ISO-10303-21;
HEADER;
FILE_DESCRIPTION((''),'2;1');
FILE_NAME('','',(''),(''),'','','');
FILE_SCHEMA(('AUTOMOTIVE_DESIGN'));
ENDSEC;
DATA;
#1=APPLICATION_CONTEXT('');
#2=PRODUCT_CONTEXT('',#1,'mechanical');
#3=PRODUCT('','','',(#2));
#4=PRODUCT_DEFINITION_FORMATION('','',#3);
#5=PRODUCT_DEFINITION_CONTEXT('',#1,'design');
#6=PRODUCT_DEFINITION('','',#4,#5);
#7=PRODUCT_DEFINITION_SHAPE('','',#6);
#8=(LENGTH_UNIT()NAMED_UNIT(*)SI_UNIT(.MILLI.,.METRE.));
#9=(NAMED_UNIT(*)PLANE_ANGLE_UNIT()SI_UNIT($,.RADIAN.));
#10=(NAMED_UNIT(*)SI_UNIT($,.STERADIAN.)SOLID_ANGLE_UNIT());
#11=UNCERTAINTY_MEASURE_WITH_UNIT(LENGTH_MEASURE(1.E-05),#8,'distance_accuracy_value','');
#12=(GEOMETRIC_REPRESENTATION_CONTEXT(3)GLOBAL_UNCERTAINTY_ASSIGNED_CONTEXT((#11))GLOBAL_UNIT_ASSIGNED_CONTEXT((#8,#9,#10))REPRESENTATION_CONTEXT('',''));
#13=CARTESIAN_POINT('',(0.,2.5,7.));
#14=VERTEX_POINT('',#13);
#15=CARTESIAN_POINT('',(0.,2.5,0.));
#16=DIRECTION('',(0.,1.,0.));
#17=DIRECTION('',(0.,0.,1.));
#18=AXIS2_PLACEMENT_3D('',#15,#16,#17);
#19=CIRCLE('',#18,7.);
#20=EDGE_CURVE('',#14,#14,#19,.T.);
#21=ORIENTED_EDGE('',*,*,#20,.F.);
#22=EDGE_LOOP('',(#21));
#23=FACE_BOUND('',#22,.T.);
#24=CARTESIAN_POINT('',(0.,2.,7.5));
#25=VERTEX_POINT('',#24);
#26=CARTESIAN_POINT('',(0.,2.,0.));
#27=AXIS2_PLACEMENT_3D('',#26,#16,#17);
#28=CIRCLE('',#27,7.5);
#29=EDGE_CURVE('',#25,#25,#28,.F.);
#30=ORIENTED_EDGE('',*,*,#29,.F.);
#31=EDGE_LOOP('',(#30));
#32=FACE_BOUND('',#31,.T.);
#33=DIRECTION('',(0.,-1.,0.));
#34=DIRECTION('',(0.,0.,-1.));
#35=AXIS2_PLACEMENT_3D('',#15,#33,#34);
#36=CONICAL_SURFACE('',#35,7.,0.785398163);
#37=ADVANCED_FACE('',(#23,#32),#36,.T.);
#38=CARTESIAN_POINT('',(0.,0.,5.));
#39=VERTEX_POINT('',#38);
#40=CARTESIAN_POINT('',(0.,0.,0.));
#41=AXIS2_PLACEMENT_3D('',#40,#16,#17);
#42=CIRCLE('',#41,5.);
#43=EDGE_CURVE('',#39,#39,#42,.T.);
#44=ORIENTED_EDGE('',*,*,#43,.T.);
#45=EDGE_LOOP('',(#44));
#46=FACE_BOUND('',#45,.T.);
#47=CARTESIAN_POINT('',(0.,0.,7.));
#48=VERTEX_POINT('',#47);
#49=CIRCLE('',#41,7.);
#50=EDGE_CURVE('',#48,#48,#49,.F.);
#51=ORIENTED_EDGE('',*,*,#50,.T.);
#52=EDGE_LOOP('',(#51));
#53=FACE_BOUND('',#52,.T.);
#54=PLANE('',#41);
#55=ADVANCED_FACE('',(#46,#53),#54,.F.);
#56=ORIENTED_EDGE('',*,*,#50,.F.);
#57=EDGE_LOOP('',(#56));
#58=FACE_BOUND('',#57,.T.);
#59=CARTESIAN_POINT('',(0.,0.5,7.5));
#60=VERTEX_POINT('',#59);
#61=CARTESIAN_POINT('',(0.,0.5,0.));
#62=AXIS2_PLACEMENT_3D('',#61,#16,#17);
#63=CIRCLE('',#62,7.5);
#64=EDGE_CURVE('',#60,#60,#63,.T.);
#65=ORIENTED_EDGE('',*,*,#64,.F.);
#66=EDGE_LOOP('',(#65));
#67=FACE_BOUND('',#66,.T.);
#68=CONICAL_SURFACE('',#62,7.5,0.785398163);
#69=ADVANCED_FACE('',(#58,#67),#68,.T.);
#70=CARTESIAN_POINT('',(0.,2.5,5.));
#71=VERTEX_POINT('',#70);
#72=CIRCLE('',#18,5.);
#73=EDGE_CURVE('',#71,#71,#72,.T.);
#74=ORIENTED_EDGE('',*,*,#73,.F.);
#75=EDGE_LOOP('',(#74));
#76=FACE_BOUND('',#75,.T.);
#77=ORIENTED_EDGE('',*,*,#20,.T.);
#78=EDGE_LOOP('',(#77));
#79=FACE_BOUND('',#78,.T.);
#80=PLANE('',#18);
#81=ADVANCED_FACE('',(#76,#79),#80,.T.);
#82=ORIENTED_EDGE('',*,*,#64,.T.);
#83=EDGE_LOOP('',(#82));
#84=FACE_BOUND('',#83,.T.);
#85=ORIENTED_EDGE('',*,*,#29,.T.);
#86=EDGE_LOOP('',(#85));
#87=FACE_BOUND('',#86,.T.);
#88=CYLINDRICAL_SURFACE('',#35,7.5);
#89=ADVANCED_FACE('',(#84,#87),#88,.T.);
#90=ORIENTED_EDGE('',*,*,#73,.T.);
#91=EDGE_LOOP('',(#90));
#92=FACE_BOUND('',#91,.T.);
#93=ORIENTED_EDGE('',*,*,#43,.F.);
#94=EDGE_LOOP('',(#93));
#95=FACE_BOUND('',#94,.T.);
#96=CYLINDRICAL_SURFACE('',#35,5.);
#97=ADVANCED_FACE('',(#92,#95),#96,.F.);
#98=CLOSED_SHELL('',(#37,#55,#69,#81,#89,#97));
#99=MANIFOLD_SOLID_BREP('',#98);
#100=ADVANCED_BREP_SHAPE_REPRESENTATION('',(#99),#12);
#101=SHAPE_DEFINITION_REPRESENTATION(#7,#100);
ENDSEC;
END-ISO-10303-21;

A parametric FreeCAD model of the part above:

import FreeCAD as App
import Part
import Sketcher


def edges_at(feature, points):
    """Names of the edges that pass closest to the given points."""
    edges = feature.Shape.Edges
    near = lambda p: min(range(len(edges)), key=lambda i: edges[i].distToShape(Part.Vertex(*p))[0])
    return sorted({f"Edge{near(p) + 1}" for p in points})

doc = App.newDocument("Part")
body = doc.addObject("PartDesign::Body", "Body")

# Sketch on XZ plane
sketch1 = doc.addObject("Sketcher::SketchObject", "Sketch")
body.addObject(sketch1)
sketch1.AttachmentSupport = (doc.XZ_Plane, [""])
sketch1.MapMode = "FlatFace"
sketch1.addGeometry(Part.Circle(App.Vector(0, 0, 0), App.Vector(0, 0, 1), 7.5), False)
sketch1.addGeometry(Part.Circle(App.Vector(0, 0, 0), App.Vector(0, 0, 1), 5), False)
sketch1.addConstraint(Sketcher.Constraint("Coincident", 0, 3, -1, 1))
sketch1.addConstraint(Sketcher.Constraint("Coincident", 1, 3, -1, 1))
sketch1.addConstraint(Sketcher.Constraint("Diameter", 0, 15.0))
sketch1.addConstraint(Sketcher.Constraint("Diameter", 1, 10.0))
pad1 = doc.addObject("PartDesign::Pad", "Pad")
body.addObject(pad1)
pad1.Profile = sketch1
pad1.Length = 2.5
pad1.Reversed = True
doc.recompute()

chamfer = doc.addObject("PartDesign::Chamfer", "Chamfer")
body.addObject(chamfer)
chamfer.Base = (pad1, edges_at(pad1, [(0, 0, -7.5), (0, 2.5, -7.5)]))
chamfer.Size = 0.5

doc.recompute()
